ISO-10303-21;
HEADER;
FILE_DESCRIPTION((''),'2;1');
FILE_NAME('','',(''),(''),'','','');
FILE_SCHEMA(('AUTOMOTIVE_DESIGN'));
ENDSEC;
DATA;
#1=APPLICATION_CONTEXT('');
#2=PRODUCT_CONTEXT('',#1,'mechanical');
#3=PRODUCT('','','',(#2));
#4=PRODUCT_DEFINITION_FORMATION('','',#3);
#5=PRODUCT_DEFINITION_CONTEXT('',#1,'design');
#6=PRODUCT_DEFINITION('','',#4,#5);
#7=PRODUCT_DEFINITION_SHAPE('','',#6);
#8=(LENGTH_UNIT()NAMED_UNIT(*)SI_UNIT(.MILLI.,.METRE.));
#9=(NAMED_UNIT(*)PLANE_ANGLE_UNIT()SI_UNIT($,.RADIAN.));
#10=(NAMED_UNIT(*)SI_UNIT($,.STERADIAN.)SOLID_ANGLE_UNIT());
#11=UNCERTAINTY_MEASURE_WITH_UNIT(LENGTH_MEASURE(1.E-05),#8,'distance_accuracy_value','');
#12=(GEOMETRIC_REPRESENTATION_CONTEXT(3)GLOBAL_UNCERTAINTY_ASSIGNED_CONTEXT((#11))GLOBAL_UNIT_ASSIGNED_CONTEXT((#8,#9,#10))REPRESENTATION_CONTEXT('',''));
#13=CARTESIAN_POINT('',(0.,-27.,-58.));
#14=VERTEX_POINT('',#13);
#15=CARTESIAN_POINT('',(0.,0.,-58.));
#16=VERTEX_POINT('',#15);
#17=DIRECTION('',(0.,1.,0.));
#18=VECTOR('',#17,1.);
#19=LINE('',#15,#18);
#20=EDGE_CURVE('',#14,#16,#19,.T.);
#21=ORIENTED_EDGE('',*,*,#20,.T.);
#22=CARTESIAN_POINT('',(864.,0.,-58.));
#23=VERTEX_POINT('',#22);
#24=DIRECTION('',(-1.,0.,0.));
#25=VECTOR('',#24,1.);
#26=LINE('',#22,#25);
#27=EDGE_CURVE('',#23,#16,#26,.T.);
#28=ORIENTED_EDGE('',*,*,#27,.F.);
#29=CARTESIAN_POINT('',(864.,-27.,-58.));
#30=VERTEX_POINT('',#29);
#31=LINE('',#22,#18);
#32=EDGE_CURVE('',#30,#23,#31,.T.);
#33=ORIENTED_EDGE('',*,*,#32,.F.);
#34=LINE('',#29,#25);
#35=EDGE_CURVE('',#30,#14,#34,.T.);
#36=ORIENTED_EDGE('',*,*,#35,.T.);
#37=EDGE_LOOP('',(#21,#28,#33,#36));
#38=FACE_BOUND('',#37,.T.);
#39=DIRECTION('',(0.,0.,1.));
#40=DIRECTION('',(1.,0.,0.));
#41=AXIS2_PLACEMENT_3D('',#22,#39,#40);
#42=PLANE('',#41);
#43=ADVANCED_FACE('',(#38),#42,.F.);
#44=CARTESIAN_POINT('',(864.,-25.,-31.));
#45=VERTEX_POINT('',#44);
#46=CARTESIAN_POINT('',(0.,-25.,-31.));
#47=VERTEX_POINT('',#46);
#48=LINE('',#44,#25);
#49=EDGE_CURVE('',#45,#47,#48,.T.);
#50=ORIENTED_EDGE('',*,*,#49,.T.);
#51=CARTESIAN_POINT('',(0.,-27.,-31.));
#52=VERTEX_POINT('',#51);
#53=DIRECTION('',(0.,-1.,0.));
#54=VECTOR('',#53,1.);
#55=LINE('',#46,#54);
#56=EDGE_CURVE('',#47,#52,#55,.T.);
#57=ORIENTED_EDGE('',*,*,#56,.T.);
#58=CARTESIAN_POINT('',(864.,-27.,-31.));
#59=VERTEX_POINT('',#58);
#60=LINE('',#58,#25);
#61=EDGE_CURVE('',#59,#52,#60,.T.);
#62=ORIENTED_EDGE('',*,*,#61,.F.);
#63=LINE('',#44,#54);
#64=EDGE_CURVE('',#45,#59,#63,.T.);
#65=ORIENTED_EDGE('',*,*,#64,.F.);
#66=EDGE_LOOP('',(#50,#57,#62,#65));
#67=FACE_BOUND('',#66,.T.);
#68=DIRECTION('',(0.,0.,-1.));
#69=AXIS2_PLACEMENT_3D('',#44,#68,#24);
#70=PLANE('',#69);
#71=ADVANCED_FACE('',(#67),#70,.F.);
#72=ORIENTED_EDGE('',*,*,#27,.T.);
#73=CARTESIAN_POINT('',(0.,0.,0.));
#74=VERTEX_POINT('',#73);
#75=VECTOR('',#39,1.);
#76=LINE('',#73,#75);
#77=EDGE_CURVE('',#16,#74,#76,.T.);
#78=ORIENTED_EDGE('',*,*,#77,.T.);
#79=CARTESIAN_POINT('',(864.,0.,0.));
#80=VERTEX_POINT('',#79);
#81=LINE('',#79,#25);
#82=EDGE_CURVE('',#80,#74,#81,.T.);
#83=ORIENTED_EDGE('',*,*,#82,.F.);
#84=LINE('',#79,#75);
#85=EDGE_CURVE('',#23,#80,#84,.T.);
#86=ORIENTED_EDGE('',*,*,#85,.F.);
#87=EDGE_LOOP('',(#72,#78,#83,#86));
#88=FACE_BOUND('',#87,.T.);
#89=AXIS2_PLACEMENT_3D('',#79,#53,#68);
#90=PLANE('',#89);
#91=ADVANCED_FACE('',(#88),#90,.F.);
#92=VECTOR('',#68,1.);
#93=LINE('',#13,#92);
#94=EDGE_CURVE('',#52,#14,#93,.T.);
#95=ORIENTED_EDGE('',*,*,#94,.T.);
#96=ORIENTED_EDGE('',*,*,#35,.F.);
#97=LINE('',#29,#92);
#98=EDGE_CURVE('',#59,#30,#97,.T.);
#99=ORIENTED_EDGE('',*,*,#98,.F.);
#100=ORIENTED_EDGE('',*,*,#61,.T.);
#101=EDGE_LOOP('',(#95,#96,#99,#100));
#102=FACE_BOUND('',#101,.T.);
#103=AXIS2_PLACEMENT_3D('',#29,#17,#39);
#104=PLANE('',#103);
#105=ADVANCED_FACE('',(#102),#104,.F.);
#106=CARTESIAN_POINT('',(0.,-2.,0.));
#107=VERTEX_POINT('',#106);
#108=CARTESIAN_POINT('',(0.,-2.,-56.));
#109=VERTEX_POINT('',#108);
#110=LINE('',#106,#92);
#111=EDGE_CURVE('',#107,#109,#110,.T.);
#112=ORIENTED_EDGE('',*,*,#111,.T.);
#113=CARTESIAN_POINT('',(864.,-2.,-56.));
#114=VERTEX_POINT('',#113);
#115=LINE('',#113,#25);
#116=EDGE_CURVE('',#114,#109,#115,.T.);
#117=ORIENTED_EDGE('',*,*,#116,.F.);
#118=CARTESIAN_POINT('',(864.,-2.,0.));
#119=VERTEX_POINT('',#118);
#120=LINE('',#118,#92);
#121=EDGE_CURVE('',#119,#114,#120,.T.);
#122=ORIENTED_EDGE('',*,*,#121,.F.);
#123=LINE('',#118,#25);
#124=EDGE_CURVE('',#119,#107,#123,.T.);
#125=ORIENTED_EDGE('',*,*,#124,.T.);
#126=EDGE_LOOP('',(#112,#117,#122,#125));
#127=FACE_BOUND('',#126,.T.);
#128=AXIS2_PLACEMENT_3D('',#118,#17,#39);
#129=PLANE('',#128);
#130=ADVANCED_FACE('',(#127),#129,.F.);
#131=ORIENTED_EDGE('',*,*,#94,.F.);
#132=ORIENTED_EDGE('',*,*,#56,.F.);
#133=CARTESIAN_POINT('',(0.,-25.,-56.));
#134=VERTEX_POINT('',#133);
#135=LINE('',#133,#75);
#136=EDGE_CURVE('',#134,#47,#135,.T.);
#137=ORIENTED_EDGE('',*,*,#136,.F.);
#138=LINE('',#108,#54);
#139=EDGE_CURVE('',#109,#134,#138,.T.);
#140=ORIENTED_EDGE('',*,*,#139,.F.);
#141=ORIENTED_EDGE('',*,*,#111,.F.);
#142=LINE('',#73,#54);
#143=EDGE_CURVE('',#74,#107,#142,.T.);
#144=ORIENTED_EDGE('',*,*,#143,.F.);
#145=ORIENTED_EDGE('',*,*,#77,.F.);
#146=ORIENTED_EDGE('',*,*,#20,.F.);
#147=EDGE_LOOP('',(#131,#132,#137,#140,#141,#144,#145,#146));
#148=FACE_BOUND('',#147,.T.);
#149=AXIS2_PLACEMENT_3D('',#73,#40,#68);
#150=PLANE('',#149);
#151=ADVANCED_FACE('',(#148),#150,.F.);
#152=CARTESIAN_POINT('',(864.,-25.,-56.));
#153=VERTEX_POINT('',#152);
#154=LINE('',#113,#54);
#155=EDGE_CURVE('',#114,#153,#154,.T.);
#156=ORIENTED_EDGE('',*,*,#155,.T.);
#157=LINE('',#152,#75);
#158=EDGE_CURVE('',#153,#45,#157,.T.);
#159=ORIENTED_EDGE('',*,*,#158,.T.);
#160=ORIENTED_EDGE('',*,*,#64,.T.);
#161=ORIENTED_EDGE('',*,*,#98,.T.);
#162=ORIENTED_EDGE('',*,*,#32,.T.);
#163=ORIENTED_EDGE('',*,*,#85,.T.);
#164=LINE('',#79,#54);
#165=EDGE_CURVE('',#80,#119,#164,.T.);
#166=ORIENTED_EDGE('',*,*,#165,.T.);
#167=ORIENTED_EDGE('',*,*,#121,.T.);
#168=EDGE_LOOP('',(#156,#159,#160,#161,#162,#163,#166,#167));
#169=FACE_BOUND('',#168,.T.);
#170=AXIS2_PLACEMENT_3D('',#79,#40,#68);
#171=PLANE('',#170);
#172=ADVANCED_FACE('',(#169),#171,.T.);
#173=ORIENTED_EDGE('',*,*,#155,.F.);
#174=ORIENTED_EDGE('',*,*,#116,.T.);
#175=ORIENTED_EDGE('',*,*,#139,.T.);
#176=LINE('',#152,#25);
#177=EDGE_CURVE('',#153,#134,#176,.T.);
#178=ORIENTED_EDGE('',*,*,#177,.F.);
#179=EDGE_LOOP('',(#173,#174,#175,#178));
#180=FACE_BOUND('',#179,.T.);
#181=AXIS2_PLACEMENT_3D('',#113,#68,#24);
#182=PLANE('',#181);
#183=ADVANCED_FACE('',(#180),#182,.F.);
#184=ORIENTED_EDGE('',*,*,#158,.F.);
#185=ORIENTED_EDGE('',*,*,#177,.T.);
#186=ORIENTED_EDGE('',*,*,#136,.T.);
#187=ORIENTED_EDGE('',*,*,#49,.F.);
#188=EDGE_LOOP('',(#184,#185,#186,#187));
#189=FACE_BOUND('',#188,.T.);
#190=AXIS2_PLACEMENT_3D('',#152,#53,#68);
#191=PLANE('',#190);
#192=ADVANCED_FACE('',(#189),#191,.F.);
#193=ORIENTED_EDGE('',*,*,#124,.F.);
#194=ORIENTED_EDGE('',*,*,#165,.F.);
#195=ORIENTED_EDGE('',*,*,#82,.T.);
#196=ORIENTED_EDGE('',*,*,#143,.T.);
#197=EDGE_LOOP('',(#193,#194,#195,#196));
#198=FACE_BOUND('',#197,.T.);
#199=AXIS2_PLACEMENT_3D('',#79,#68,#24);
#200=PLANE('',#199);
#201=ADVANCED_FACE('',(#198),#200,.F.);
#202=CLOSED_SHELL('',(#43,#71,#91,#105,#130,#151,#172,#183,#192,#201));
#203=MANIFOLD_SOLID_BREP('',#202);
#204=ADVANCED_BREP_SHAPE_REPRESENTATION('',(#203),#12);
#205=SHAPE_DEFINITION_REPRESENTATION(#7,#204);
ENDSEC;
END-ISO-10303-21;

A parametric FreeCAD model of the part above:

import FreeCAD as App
import Part
import Sketcher
Q = App.Units.Quantity

doc = App.newDocument("Part")
body = doc.addObject("PartDesign::Body", "Body")

sketch1 = body.newObject("Sketcher::SketchObject", "Sketch")
sketch1.AttachmentSupport = (doc.getObject("YZ_Plane"), [""])
sketch1.MapMode = "FlatFace"
sketch1.addGeometry(Part.LineSegment(App.Vector(0, -58, 0), App.Vector(0, 0, 0)), False)
sketch1.addGeometry(Part.LineSegment(App.Vector(0, 0, 0), App.Vector(-2, 0, 0)), False)
sketch1.addGeometry(Part.LineSegment(App.Vector(-2, 0, 0), App.Vector(-2, -56, 0)), False)
sketch1.addGeometry(Part.LineSegment(App.Vector(-2, -56, 0), App.Vector(-25, -56, 0)), False)
sketch1.addGeometry(Part.LineSegment(App.Vector(-25, -56, 0), App.Vector(-25, -31, 0)), False)
sketch1.addGeometry(Part.LineSegment(App.Vector(-25, -31, 0), App.Vector(-27, -31, 0)), False)
sketch1.addGeometry(Part.LineSegment(App.Vector(-27, -31, 0), App.Vector(-27, -58, 0)), False)
sketch1.addGeometry(Part.LineSegment(App.Vector(-27, -58, 0), App.Vector(0, -58, 0)), False)
sketch1.addConstraint(Sketcher.Constraint("Coincident", 0, 2, 1, 1))
sketch1.addConstraint(Sketcher.Constraint("Coincident", 1, 2, 2, 1))
sketch1.addConstraint(Sketcher.Constraint("Coincident", 2, 2, 3, 1))
sketch1.addConstraint(Sketcher.Constraint("Coincident", 3, 2, 4, 1))
sketch1.addConstraint(Sketcher.Constraint("Coincident", 4, 2, 5, 1))
sketch1.addConstraint(Sketcher.Constraint("Coincident", 5, 2, 6, 1))
sketch1.addConstraint(Sketcher.Constraint("Coincident", 6, 2, 7, 1))
sketch1.addConstraint(Sketcher.Constraint("Coincident", 7, 2, 0, 1))
sketch1.addConstraint(Sketcher.Constraint("Vertical", 0))
sketch1.addConstraint(Sketcher.Constraint("Horizontal", 1))
sketch1.addConstraint(Sketcher.Constraint("Vertical", 2))
sketch1.addConstraint(Sketcher.Constraint("Horizontal", 3))
sketch1.addConstraint(Sketcher.Constraint("Vertical", 4))
sketch1.addConstraint(Sketcher.Constraint("Horizontal", 5))
sketch1.addConstraint(Sketcher.Constraint("Vertical", 6))
sketch1.addConstraint(Sketcher.Constraint("Horizontal", 7))
sketch1.addConstraint(Sketcher.Constraint("Coincident", 0, 2, -1, 1))
sketch1.addConstraint(Sketcher.Constraint("Equal", 1, 5))
sketch1.addConstraint(Sketcher.Constraint("Equal", 7, 6))
sketch1.addConstraint(Sketcher.Constraint("DistanceX", 1, 2, 1, 1, Q("2 mm")))
sketch1.addConstraint(Sketcher.Constraint("DistanceX", 3, 2, 3, 1, Q("23 mm")))
sketch1.addConstraint(Sketcher.Constraint("DistanceY", 0, 1, 0, 2, Q("58 mm")))
sketch1.addConstraint(Sketcher.Constraint("DistanceY", 2, 2, 2, 1, Q("56 mm")))
pad1 = body.newObject("PartDesign::Pad", "Pad")
pad1.Profile = sketch1
pad1.Length = 864

doc.recompute()
